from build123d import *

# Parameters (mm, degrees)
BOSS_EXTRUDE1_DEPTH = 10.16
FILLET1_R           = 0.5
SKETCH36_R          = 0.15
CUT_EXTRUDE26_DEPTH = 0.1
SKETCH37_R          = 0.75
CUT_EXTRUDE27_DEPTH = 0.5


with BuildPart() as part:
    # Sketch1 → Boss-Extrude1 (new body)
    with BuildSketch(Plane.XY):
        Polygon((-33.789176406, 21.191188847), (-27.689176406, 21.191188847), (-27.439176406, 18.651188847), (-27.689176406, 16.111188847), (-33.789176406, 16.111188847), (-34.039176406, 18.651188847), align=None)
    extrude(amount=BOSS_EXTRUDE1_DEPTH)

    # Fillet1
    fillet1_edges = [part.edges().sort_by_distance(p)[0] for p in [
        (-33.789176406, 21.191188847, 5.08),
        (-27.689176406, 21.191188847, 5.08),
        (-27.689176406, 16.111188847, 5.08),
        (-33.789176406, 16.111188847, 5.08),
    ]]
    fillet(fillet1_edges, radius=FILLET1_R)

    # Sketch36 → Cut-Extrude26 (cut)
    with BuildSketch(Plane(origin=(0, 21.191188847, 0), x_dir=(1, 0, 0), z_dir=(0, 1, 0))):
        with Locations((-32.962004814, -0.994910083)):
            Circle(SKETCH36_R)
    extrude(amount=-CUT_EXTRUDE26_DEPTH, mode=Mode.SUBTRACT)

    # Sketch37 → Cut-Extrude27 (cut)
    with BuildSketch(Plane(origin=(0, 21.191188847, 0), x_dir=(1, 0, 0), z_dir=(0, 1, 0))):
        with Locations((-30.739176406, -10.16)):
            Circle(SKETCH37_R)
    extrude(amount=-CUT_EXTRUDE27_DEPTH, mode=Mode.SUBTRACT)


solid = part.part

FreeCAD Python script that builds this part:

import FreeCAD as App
import Part
import Sketcher
Q = App.Units.Quantity


def edges_at(feature, points):
    """Names of the edges that pass closest to the given points."""
    edges = feature.Shape.Edges
    near = lambda p: min(range(len(edges)), key=lambda i: edges[i].distToShape(Part.Vertex(*p))[0])
    return sorted({f"Edge{near(p) + 1}" for p in points})


def add_polygon(sketch, points):
    """Adds a closed chain of lines whose ends are joined by coincident constraints."""
    first, n = sketch.GeometryCount, len(points)
    for a, b in zip(points, points[1:] + points[:1]):
        sketch.addGeometry(Part.LineSegment(App.Vector(*a, 0), App.Vector(*b, 0)), False)
    for i in range(n):
        sketch.addConstraint(Sketcher.Constraint("Coincident", first + i, 2, first + (i + 1) % n, 1))

doc = App.newDocument("Part")
body = doc.addObject("PartDesign::Body", "Body")

sketch1 = body.newObject("Sketcher::SketchObject", "Sketch")
sketch1.AttachmentSupport = (doc.getObject("XY_Plane"), [""])
sketch1.MapMode = "FlatFace"
add_polygon(sketch1, [(-27.7, 21.2), (-33.8, 21.2), (-34, 18.7), (-33.8, 16.1), (-27.7, 16.1), (-27.4, 18.7)])
sketch1.addConstraint([
    Sketcher.Constraint("Horizontal", 0),
    Sketcher.Constraint("Horizontal", 3),
    Sketcher.Constraint("Parallel", 1, 4),
    Sketcher.Constraint("Parallel", 2, 5),
    Sketcher.Constraint("Horizontal", 1, 2, 4, 2),
    Sketcher.Constraint("Vertical", 0, 2, 2, 2),
    Sketcher.Constraint("Vertical", 3, 2, 5, 2),
    Sketcher.Constraint("DistanceX", 0, 2, 0, 1, Q("6.1 mm")),
    Sketcher.Constraint("DistanceX", 1, 2, 4, 2, Q("6.6 mm")),
    Sketcher.Constraint("DistanceY", 1, 2, 0, 2, Q("2.54 mm")),
    Sketcher.Constraint("DistanceY", -1, 1, 0, 2, Q("21.191189 mm")),
    Sketcher.Constraint("DistanceX", 0, 2, -1, 1, Q("33.789176 mm")),
])
pad1 = body.newObject("PartDesign::Pad", "Pad")
pad1.Profile = sketch1
pad1.Length = 10.16
doc.recompute()

fillet = body.newObject("PartDesign::Fillet", "Fillet")
fillet.Base = (pad1, edges_at(pad1, [
    (-33.789, 21.191, 5.08),
    (-27.689, 21.191, 5.08),
    (-27.689, 16.111, 5.08),
    (-33.789, 16.111, 5.08),
]))
fillet.Radius = 0.5

sketch2 = body.newObject("Sketcher::SketchObject", "Sketch001")
sketch2.AttachmentSupport = (doc.getObject("XZ_Plane"), [""])
sketch2.MapMode = "FlatFace"
sketch2.AttachmentOffset = App.Placement(App.Vector(0, 0, -21.191189), App.Rotation())
sketch2.addGeometry(Part.Circle(App.Vector(-32.96, 0.99, 0), App.Vector(0, 0, 1), 0.15), False)
sketch2.addConstraint([
    Sketcher.Constraint("Diameter", 0, Q("0.3 mm")),
    Sketcher.Constraint("DistanceY", -1, 1, 0, 3, Q("0.99491 mm")),
    Sketcher.Constraint("DistanceX", 0, 3, -1, 1, Q("32.962005 mm")),
])
pocket1 = body.newObject("PartDesign::Pocket", "Pocket")
pocket1.Profile = sketch2
pocket1.Length = 0.1
pocket1.Reversed = True

sketch3 = body.newObject("Sketcher::SketchObject", "Sketch002")
sketch3.AttachmentSupport = (doc.getObject("XZ_Plane"), [""])
sketch3.MapMode = "FlatFace"
sketch3.AttachmentOffset = App.Placement(App.Vector(0, 0, -21.191189), App.Rotation())
sketch3.addGeometry(Part.Circle(App.Vector(-30.7, 10.2, 0), App.Vector(0, 0, 1), 0.8), False)
sketch3.addConstraint([
    Sketcher.Constraint("Diameter", 0, Q("1.5 mm")),
    Sketcher.Constraint("DistanceY", -1, 1, 0, 3, Q("10.16 mm")),
    Sketcher.Constraint("DistanceX", 0, 3, -1, 1, Q("30.739176 mm")),
])
pocket2 = body.newObject("PartDesign::Pocket", "Pocket001")
pocket2.Profile = sketch3
pocket2.Length = 0.5
pocket2.Reversed = True

doc.recompute()
